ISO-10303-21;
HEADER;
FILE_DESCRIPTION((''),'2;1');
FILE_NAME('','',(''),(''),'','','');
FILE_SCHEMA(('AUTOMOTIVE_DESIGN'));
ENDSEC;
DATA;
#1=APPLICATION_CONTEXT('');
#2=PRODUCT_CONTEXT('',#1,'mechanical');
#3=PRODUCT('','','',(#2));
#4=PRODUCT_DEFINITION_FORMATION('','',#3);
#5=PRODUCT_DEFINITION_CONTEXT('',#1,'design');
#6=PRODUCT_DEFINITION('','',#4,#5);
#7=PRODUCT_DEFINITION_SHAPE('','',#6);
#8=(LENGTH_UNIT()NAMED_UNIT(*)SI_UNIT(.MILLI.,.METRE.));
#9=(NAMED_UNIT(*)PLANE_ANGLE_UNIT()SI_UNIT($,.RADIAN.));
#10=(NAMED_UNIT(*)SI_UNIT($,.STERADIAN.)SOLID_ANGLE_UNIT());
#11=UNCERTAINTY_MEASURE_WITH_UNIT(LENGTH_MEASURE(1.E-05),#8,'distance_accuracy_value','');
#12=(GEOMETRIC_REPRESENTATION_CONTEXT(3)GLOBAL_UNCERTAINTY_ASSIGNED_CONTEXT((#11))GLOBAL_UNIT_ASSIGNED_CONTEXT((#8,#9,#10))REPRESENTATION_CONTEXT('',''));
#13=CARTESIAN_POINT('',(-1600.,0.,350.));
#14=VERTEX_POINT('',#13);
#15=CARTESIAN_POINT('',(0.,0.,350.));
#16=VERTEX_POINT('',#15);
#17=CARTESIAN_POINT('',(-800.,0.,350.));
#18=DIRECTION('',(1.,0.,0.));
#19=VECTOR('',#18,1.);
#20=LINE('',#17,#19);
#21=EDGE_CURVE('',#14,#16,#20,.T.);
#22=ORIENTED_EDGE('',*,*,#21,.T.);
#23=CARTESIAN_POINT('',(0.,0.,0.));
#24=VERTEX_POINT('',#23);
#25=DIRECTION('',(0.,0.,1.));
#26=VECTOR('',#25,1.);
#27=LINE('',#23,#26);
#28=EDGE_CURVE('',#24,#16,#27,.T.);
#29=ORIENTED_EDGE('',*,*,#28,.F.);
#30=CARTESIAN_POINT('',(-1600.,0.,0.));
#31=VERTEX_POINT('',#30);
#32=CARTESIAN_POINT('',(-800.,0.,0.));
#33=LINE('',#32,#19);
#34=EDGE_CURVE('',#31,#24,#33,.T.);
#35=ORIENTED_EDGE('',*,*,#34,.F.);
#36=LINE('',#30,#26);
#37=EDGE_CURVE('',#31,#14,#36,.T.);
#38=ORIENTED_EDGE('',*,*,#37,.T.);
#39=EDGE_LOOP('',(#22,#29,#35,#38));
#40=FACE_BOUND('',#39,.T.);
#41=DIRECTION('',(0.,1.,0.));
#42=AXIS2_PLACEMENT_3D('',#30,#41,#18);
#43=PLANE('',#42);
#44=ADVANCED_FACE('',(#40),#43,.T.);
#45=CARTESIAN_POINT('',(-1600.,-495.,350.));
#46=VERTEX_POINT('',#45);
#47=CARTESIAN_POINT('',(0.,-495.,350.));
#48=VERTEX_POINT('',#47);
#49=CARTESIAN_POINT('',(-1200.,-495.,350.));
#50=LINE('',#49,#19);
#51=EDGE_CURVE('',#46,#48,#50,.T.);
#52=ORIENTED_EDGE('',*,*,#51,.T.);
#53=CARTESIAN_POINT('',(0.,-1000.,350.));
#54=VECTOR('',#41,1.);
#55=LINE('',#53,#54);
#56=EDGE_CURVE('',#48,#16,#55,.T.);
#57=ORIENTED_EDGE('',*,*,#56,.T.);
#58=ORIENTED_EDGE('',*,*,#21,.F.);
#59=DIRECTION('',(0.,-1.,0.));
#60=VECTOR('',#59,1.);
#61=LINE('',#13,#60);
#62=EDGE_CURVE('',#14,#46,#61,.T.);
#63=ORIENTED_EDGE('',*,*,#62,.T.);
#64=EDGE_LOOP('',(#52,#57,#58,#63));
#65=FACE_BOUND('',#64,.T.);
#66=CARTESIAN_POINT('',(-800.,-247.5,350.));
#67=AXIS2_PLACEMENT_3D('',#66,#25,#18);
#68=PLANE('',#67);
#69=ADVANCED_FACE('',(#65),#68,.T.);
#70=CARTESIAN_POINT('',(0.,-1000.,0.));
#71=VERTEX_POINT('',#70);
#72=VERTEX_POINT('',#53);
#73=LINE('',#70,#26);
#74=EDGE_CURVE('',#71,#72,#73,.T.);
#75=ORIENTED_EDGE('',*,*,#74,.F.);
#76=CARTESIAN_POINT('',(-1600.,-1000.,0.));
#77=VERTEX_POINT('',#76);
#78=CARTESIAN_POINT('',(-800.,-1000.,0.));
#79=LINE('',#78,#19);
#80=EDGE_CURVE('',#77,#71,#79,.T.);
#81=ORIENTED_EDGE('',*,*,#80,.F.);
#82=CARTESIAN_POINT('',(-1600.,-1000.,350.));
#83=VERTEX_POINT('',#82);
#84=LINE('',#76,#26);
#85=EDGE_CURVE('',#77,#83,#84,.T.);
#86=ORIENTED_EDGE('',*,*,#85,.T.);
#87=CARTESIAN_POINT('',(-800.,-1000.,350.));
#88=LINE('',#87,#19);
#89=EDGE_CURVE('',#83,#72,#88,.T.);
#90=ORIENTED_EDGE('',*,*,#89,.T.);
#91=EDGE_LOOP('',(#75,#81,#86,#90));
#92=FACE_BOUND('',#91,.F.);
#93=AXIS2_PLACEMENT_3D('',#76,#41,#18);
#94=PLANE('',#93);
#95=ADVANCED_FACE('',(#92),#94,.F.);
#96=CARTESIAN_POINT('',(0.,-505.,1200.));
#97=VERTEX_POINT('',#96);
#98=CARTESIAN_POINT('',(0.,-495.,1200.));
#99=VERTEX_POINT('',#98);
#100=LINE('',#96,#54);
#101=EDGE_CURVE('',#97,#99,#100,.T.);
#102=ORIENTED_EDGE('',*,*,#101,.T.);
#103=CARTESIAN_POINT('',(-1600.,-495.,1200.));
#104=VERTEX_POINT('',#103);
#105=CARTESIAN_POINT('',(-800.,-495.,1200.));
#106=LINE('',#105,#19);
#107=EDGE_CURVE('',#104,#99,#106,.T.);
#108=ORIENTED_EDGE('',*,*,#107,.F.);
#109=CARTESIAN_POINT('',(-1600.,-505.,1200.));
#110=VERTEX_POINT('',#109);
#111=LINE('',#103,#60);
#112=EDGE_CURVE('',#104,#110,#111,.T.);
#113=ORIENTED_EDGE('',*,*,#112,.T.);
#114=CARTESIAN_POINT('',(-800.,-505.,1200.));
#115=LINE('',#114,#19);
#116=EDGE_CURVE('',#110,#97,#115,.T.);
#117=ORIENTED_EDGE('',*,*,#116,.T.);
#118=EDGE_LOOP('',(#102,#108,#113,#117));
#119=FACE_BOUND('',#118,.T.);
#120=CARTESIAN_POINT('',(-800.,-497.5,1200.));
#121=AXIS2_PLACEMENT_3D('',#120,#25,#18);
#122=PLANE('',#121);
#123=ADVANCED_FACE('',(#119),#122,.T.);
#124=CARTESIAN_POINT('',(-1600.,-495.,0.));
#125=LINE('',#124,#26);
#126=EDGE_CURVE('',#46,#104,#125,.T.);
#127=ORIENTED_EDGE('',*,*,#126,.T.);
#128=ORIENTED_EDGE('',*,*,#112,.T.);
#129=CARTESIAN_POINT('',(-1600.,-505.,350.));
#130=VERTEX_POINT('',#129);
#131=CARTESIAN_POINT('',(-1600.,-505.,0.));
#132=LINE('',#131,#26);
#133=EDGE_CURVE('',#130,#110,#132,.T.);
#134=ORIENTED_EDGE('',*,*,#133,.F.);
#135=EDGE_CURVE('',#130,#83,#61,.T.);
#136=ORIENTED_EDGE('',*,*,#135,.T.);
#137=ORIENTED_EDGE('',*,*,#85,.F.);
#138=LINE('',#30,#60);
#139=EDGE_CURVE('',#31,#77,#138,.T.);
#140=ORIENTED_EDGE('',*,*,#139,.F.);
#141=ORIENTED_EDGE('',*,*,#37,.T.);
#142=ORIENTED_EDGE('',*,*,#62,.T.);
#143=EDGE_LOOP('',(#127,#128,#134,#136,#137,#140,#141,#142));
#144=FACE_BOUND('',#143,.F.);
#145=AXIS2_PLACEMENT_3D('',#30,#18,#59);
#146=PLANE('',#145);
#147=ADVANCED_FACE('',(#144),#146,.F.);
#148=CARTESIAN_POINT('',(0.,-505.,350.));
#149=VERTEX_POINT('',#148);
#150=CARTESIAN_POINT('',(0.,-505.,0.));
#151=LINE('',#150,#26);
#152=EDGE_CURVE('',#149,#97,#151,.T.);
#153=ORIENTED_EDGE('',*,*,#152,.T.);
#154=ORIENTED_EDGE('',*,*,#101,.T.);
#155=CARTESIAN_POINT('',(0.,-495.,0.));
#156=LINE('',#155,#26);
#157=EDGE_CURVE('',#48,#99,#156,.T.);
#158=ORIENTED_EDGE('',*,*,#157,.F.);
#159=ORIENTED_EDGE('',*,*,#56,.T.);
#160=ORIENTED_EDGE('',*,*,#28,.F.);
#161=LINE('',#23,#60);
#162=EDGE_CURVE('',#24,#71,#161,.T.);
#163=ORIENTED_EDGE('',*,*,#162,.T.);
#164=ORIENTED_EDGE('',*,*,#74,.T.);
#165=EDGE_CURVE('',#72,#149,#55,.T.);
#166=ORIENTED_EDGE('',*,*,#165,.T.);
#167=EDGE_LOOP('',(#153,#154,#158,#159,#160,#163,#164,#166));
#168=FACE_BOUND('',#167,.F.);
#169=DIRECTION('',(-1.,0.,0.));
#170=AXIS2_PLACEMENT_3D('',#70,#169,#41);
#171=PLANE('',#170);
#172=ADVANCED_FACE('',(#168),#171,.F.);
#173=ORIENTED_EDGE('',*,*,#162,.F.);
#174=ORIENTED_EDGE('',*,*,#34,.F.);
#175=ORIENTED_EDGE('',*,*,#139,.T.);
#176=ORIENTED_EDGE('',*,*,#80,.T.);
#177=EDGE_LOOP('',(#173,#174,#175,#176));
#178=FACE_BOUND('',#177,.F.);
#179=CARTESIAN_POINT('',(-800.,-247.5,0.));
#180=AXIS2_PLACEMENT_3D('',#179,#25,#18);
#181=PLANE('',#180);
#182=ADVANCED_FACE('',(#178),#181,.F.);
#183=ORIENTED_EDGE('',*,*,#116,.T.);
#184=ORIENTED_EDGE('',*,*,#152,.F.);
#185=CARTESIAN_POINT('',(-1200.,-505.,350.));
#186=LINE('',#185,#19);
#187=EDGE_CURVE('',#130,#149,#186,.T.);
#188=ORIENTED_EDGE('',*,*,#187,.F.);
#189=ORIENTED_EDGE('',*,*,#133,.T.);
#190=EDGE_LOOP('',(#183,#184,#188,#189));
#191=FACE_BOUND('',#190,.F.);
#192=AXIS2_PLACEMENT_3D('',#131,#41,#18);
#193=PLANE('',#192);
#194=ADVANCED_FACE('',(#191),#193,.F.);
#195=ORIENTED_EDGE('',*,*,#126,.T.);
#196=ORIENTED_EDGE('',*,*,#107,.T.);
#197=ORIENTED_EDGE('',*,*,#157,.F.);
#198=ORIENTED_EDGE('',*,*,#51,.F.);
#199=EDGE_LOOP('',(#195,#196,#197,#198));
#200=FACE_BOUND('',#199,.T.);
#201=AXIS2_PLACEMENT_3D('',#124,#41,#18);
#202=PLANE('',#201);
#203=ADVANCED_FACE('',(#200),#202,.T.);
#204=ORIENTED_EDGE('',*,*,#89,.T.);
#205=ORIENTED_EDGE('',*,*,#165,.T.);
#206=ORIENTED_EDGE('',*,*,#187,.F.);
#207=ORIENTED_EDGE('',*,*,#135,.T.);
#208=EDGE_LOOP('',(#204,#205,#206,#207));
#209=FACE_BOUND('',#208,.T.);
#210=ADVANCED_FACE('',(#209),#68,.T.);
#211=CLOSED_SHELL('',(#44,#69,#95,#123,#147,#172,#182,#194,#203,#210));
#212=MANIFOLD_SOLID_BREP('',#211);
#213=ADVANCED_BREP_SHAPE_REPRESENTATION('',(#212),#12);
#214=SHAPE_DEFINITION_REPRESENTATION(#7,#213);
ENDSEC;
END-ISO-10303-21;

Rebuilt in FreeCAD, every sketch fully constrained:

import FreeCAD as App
import Part
import Sketcher
Q = App.Units.Quantity


def add_polygon(sketch, points):
    """Adds a closed chain of lines whose ends are joined by coincident constraints."""
    first, n = sketch.GeometryCount, len(points)
    for a, b in zip(points, points[1:] + points[:1]):
        sketch.addGeometry(Part.LineSegment(App.Vector(*a, 0), App.Vector(*b, 0)), False)
    for i in range(n):
        sketch.addConstraint(Sketcher.Constraint("Coincident", first + i, 2, first + (i + 1) % n, 1))

doc = App.newDocument("Part")
params = doc.addObject("Spreadsheet::Sheet", "Params")
for row, (alias, value) in enumerate([
    ("sketch1_width", "1600 mm"),
    ("sketch1_height", "10 mm"),
    ("pad1_length", "1200 mm"),
    ("sketch2_width", "1600 mm"),
    ("sketch2_height", "1000 mm"),
    ("pad2_length", "350 mm"),
], start=1):
    params.set(f"A{row}", alias)
    params.set(f"B{row}", "=" + value)
    params.setAlias(f"B{row}", alias)

body = doc.addObject("PartDesign::Body", "Body")

# Sketch on XY plane
sketch1 = body.newObject("Sketcher::SketchObject", "Sketch")
sketch1.AttachmentSupport = (doc.getObject("XY_Plane"), [""])
sketch1.MapMode = "FlatFace"
add_polygon(sketch1, [(-1600, -495), (-1600, -505), (0, -505), (0, -495)])  # lines 0-3
sketch1.addConstraint(Sketcher.Constraint("Vertical", 0))
sketch1.addConstraint(Sketcher.Constraint("Horizontal", 1))
sketch1.addConstraint(Sketcher.Constraint("Vertical", 2))
sketch1.addConstraint(Sketcher.Constraint("Horizontal", 3))
sketch1.addConstraint(Sketcher.Constraint("PointOnObject", 1, 2, -2))
sketch1.addConstraint(Sketcher.Constraint("DistanceX", 1, 1, 1, 2, Q("1600 mm")))
sketch1.addConstraint(Sketcher.Constraint("DistanceY", 0, 2, 0, 1, Q("10 mm")))
sketch1.addConstraint(Sketcher.Constraint("DistanceY", 0, 2, -1, 1, Q("505 mm")))
sketch1.setExpression("Constraints[9]", "Params.sketch1_width")
sketch1.setExpression("Constraints[10]", "Params.sketch1_height")
pad1 = body.newObject("PartDesign::Pad", "Pad")
pad1.Profile = sketch1
pad1.setExpression("Length", "Params.pad1_length")

# Sketch on XY plane
sketch2 = body.newObject("Sketcher::SketchObject", "Sketch001")
sketch2.AttachmentSupport = (doc.getObject("XY_Plane"), [""])
sketch2.MapMode = "FlatFace"
add_polygon(sketch2, [(-1600, 0), (-1600, -1000), (0, -1000), (0, 0)])  # lines 0-3
sketch2.addConstraint(Sketcher.Constraint("Vertical", 0))
sketch2.addConstraint(Sketcher.Constraint("Horizontal", 1))
sketch2.addConstraint(Sketcher.Constraint("Vertical", 2))
sketch2.addConstraint(Sketcher.Constraint("Horizontal", 3))
sketch2.addConstraint(Sketcher.Constraint("Coincident", 2, 2, -1, 1))
sketch2.addConstraint(Sketcher.Constraint("DistanceX", 1, 1, 1, 2, Q("1600 mm")))
sketch2.addConstraint(Sketcher.Constraint("DistanceY", 0, 2, 0, 1, Q("1000 mm")))
sketch2.setExpression("Constraints[9]", "Params.sketch2_width")
sketch2.setExpression("Constraints[10]", "Params.sketch2_height")
pad2 = body.newObject("PartDesign::Pad", "Pad001")
pad2.Profile = sketch2
pad2.setExpression("Length", "Params.pad2_length")

doc.recompute()
